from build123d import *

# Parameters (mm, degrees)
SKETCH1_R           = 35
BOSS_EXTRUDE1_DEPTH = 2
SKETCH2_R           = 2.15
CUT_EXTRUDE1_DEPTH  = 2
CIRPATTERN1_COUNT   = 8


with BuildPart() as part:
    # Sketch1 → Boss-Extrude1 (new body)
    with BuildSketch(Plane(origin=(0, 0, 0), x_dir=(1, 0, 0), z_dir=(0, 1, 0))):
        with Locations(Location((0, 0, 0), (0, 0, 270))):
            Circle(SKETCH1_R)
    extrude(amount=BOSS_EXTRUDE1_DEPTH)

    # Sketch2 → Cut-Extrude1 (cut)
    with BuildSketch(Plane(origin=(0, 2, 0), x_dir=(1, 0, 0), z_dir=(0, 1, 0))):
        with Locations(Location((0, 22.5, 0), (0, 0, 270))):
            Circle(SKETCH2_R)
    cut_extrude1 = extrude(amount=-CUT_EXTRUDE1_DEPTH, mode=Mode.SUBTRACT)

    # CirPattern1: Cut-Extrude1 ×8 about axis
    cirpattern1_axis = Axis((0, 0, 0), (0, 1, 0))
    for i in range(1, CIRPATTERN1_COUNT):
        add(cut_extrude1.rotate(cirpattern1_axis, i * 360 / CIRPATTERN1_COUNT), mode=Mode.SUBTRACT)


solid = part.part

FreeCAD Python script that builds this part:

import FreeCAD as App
import Part
import Sketcher

V = App.Vector

doc = App.newDocument("Part")
params = doc.addObject("Spreadsheet::Sheet", "Params")
for row, (alias, value) in enumerate([
    ("sketch1_diameter", "70 mm"),
    ("pad1_length", "2 mm"),
    ("sketch2_diameter", "4.3 mm"),
    ("pocket1_length", "2 mm"),
], start=1):
    params.set(f"A{row}", alias)
    params.set(f"B{row}", "=" + value)
    params.setAlias(f"B{row}", alias)

body = doc.addObject("PartDesign::Body", "Body")

sketch1 = body.newObject("Sketcher::SketchObject", "Sketch")
sketch1.AttachmentSupport = (doc.getObject("XZ_Plane"), [""])
sketch1.MapMode = "FlatFace"
sketch1.addGeometry(Part.Circle(V(0, 0, 0), V(0, 0, 1), 35), False)
sketch1.addConstraint([
    Sketcher.Constraint("Coincident", 0, 3, -1, 1),
    Sketcher.Constraint("Diameter", 0, 70.0),
])
sketch1.setExpression("Constraints[1]", "Params.sketch1_diameter")
pad1 = body.newObject("PartDesign::Pad", "Pad")
pad1.Profile = sketch1
pad1.setExpression("Length", "Params.pad1_length")
pad1.Reversed = True

sketch2 = body.newObject("Sketcher::SketchObject", "Sketch001")
sketch2.AttachmentSupport = (doc.getObject("XZ_Plane"), [""])
sketch2.MapMode = "FlatFace"
sketch2.AttachmentOffset = App.Placement(V(0, 0, -2), App.Rotation())
sketch2.addGeometry(Part.Circle(V(0, -22.5, 0), V(0, 0, 1), 2.15), False)
sketch2.addConstraint([
    Sketcher.Constraint("PointOnObject", 0, 3, -2),
    Sketcher.Constraint("Diameter", 0, 4.3),
    Sketcher.Constraint("DistanceY", 0, 3, -1, 1, 22.5),
])
sketch2.setExpression("Constraints[1]", "Params.sketch2_diameter")
pocket1 = body.newObject("PartDesign::Pocket", "Pocket")
pocket1.Profile = sketch2
pocket1.setExpression("Length", "Params.pocket1_length")
pocket1.Reversed = True
doc.recompute()

polarpattern = body.newObject("PartDesign::PolarPattern", "PolarPattern")
polarpattern.Originals = [pocket1]
polarpattern.Axis = (doc.getObject("Y_Axis"), [""])
polarpattern.Angle = 360
polarpattern.Occurrences = 8
body.Tip = polarpattern

doc.recompute()
